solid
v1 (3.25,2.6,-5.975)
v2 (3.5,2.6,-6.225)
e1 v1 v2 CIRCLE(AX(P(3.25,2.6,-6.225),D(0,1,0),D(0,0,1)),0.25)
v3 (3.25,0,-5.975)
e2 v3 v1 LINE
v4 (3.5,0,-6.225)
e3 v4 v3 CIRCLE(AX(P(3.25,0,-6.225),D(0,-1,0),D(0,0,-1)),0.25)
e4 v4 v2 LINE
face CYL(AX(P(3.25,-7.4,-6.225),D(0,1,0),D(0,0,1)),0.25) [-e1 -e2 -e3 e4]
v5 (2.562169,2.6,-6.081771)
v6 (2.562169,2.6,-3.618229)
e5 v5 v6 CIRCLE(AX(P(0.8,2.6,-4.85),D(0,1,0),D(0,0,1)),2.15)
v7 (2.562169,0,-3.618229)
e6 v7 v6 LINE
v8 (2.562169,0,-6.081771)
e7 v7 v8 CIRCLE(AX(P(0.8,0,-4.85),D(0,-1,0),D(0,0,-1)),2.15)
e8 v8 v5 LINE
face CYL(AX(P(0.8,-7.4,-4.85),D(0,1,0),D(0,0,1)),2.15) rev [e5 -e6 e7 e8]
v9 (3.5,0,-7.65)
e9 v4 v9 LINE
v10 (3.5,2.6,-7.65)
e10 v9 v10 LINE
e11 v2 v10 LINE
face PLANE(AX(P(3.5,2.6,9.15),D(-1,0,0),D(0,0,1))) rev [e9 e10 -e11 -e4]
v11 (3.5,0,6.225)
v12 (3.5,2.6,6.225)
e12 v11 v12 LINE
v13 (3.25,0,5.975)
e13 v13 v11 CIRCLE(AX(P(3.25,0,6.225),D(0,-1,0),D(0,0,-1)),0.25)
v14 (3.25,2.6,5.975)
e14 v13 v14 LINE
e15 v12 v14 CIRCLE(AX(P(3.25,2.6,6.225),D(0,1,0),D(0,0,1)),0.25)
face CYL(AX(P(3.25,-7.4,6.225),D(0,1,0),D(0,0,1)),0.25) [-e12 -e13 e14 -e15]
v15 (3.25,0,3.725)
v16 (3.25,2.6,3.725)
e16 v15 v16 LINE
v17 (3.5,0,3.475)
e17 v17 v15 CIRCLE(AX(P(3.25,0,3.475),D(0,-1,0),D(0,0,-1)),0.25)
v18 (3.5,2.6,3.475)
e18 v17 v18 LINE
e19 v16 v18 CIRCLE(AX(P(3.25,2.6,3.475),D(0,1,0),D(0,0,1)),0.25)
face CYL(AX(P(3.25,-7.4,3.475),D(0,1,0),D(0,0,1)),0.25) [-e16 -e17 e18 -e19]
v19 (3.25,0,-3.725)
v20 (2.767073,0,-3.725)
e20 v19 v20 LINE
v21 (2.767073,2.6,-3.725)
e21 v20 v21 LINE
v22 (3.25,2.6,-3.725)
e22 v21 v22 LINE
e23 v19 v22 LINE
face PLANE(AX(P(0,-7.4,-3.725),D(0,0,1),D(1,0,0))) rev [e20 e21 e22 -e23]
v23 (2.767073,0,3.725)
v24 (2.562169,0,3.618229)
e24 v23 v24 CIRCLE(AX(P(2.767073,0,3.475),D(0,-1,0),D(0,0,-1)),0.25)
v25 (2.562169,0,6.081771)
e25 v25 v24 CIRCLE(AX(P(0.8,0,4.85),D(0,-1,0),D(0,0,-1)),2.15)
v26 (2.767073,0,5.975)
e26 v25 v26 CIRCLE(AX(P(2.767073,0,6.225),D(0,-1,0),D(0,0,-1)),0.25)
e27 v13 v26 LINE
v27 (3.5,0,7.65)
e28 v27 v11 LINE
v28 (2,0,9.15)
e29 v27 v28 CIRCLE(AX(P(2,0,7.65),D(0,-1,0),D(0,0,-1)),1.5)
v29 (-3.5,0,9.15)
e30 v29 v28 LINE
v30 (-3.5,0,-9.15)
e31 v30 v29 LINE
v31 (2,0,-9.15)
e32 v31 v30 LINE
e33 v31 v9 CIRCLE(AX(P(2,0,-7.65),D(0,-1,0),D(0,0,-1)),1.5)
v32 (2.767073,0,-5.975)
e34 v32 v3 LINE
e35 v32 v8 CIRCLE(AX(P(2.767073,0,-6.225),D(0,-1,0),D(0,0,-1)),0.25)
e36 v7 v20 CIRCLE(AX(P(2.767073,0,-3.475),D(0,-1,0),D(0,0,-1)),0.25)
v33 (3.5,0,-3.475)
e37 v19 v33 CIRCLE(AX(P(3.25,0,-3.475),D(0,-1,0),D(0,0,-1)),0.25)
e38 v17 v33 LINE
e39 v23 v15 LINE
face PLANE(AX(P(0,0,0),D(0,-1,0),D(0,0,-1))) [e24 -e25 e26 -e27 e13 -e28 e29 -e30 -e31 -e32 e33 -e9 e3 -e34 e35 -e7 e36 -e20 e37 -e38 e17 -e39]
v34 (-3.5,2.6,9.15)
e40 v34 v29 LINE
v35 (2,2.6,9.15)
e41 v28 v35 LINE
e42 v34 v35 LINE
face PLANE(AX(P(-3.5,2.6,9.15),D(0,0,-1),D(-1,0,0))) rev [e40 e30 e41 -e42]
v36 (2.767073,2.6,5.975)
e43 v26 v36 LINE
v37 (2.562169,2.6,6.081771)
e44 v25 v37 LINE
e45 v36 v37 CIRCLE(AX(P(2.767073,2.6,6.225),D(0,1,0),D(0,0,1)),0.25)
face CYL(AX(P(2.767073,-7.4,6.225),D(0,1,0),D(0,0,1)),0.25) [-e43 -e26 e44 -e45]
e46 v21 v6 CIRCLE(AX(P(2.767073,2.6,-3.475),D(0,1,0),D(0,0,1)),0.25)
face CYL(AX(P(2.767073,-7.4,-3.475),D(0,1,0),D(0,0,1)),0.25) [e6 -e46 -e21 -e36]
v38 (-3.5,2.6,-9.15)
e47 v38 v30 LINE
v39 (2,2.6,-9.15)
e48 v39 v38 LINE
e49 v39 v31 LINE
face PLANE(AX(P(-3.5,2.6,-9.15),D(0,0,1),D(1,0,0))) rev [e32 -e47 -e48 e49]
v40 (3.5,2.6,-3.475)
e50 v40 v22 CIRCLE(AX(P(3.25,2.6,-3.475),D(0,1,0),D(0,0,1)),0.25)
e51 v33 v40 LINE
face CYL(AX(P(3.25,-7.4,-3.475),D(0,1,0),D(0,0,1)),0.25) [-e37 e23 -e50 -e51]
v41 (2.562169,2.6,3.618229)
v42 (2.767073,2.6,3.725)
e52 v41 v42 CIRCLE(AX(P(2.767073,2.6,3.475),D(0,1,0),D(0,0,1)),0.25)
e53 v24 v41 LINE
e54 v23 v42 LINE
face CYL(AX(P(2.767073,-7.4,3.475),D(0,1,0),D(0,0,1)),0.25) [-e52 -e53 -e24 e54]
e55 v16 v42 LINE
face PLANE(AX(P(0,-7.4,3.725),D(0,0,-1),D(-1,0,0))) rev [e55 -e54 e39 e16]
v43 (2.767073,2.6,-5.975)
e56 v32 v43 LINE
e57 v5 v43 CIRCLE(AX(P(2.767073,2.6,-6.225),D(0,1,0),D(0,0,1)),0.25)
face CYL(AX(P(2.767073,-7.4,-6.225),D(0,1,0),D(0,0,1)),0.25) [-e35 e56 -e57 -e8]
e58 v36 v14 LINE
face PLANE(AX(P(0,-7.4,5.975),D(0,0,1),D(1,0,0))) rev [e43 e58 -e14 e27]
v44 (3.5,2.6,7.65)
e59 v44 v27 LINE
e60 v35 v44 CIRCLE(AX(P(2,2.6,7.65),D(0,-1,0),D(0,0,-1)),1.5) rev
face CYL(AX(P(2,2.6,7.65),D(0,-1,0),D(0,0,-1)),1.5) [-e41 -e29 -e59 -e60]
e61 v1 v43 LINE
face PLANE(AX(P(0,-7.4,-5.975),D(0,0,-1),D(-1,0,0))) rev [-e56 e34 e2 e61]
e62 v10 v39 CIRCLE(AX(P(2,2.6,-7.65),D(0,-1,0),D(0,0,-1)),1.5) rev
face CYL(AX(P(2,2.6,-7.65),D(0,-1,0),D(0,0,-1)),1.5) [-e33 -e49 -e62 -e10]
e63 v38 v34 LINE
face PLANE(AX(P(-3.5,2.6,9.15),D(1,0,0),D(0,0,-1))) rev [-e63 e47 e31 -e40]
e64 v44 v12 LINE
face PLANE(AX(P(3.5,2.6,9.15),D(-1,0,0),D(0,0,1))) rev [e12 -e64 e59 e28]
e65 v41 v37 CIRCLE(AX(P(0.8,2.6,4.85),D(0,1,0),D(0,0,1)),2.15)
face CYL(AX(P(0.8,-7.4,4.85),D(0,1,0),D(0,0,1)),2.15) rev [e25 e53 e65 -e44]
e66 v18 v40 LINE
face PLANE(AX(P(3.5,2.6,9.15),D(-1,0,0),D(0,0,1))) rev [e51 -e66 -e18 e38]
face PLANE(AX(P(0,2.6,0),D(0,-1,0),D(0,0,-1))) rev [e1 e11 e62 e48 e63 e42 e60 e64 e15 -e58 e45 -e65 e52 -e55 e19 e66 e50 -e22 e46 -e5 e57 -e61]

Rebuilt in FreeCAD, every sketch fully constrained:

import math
import FreeCAD as App
import Part
import Sketcher
from FreeCAD import Vector


def edges_at(feature, points):
    """Names of the edges that pass closest to the given points."""
    edges = feature.Shape.Edges
    near = lambda p: min(range(len(edges)), key=lambda i: edges[i].distToShape(Part.Vertex(*p))[0])
    return sorted({f"Edge{near(p) + 1}" for p in points})


def add_polygon(sketch, points):
    """Adds a closed chain of lines whose ends are joined by coincident constraints."""
    first, n = sketch.GeometryCount, len(points)
    for a, b in zip(points, points[1:] + points[:1]):
        sketch.addGeometry(Part.LineSegment(App.Vector(*a, 0), App.Vector(*b, 0)), False)
    for i in range(n):
        sketch.addConstraint(Sketcher.Constraint("Coincident", first + i, 2, first + (i + 1) % n, 1))

doc = App.newDocument("Part")
body = doc.addObject("PartDesign::Body", "Body")

# Sketch on XZ plane
sketch1 = body.newObject("Sketcher::SketchObject", "Sketch")
sketch1.AttachmentSupport = (doc.getObject("XZ_Plane"), [""])
sketch1.MapMode = "FlatFace"
add_polygon(sketch1, [(-4, -9), (-4, 9), (4, 9), (4, -9)])  # lines 0-3
sketch1.addConstraint([
    Sketcher.Constraint("Vertical", 0),
    Sketcher.Constraint("Horizontal", 1),
    Sketcher.Constraint("Vertical", 2),
    Sketcher.Constraint("Horizontal", 3),
    Sketcher.Constraint("Symmetric", 0, 2, 2, 2, -1, 1),
    Sketcher.Constraint("DistanceX", 1, 1, 1, 2, 7.0),
    Sketcher.Constraint("DistanceY", 0, 1, 0, 2, 18.3),
])
pad1 = body.newObject("PartDesign::Pad", "Pad")
pad1.Profile = sketch1
pad1.Length = 2.6
pad1.Reversed = True

# Sketch on XZ plane
sketch2 = body.newObject("Sketcher::SketchObject", "Sketch001")
sketch2.AttachmentSupport = (doc.getObject("XZ_Plane"), [""])
sketch2.MapMode = "FlatFace"
sketch2.AttachmentOffset = App.Placement(Vector(0, 0, -2.6), App.Rotation())
sketch2.addGeometry([
    Part.ArcOfCircle(Part.Circle(Vector(3.25, -3.47, 0), Vector(0, 0, 1), 0.25), math.radians(-90), math.radians(0)),  # 0
    Part.LineSegment(Vector(3.5, -3.48, 0), Vector(3.5, -6.22, 0)),  # 1
    Part.ArcOfCircle(Part.Circle(Vector(3.25, -6.23, 0), Vector(0, 0, 1), 0.25), math.radians(0), math.radians(90)),  # 2
    Part.LineSegment(Vector(3.25, -5.97, 0), Vector(2.77, -5.97, 0)),  # 3
    Part.ArcOfCircle(Part.Circle(Vector(2.77, -6.23, 0), Vector(0, 0, 1), 0.25), math.radians(90), math.radians(145)),  # 4
    Part.ArcOfCircle(Part.Circle(Vector(0.8, -4.85, 0), Vector(0, 0, 1), 2.15), math.radians(35), math.radians(325)),  # 5
    Part.ArcOfCircle(Part.Circle(Vector(2.77, -3.47, 0), Vector(0, 0, 1), 0.25), math.radians(-145), math.radians(-90)),  # 6
    Part.LineSegment(Vector(2.77, -3.73, 0), Vector(3.25, -3.73, 0)),  # 7
    Part.ArcOfCircle(Part.Circle(Vector(3.25, 3.47, 0), Vector(0, 0, 1), 0.25), math.radians(0), math.radians(90)),  # 8
    Part.LineSegment(Vector(3.25, 3.73, 0), Vector(2.77, 3.73, 0)),  # 9
    Part.ArcOfCircle(Part.Circle(Vector(2.77, 3.47, 0), Vector(0, 0, 1), 0.25), math.radians(90), math.radians(145)),  # 10
    Part.ArcOfCircle(Part.Circle(Vector(0.8, 4.85, 0), Vector(0, 0, 1), 2.15), math.radians(35), math.radians(325)),  # 11
    Part.ArcOfCircle(Part.Circle(Vector(2.77, 6.23, 0), Vector(0, 0, 1), 0.25), math.radians(-145), math.radians(-90)),  # 12
    Part.LineSegment(Vector(2.77, 5.97, 0), Vector(3.25, 5.97, 0)),  # 13
    Part.ArcOfCircle(Part.Circle(Vector(3.25, 6.23, 0), Vector(0, 0, 1), 0.25), math.radians(-90), math.radians(0)),  # 14
    Part.LineSegment(Vector(3.5, 6.22, 0), Vector(3.5, 3.48, 0)),  # 15
], False)
sketch2.addConstraint([
    Sketcher.Constraint("Tangent", 0, 2, 1, 1),
    Sketcher.Constraint("Tangent", 1, 2, 2, 1),
    Sketcher.Constraint("Tangent", 2, 2, 3, 1),
    Sketcher.Constraint("Tangent", 3, 2, 4, 1),
    Sketcher.Constraint("Tangent", 4, 2, 5, 2),
    Sketcher.Constraint("Tangent", 5, 1, 6, 1),
    Sketcher.Constraint("Tangent", 6, 2, 7, 1),
    Sketcher.Constraint("Tangent", 7, 2, 0, 1),
    Sketcher.Constraint("Tangent", 8, 2, 9, 1),
    Sketcher.Constraint("Tangent", 9, 2, 10, 1),
    Sketcher.Constraint("Tangent", 10, 2, 11, 2),
    Sketcher.Constraint("Tangent", 11, 1, 12, 1),
    Sketcher.Constraint("Tangent", 12, 2, 13, 1),
    Sketcher.Constraint("Tangent", 13, 2, 14, 1),
    Sketcher.Constraint("Tangent", 14, 2, 15, 1),
    Sketcher.Constraint("Tangent", 15, 2, 8, 1),
    Sketcher.Constraint("Vertical", 1),
    Sketcher.Constraint("Horizontal", 3),
    Sketcher.Constraint("Horizontal", 7),
    Sketcher.Constraint("Horizontal", 9),
    Sketcher.Constraint("Horizontal", 13),
    Sketcher.Constraint("Vertical", 15),
    Sketcher.Constraint("Equal", 0, 2),
    Sketcher.Constraint("Equal", 2, 4),
    Sketcher.Constraint("Equal", 4, 6),
    Sketcher.Constraint("Equal", 6, 8),
    Sketcher.Constraint("Equal", 8, 10),
    Sketcher.Constraint("Equal", 5, 11),
    Sketcher.Constraint("Equal", 10, 12),
    Sketcher.Constraint("Equal", 12, 14),
    Sketcher.Constraint("Symmetric", 0, 3, 8, 3, -1),
    Sketcher.Constraint("Symmetric", 5, 3, 11, 3, -1),
    Sketcher.Constraint("Vertical", 4, 3, 6, 3),
    Sketcher.Constraint("Vertical", 10, 3, 12, 3),
    Sketcher.Constraint("Radius", 0, 0.25),
    Sketcher.Constraint("Radius", 5, 2.15),
    Sketcher.Constraint("DistanceY", 1, 2, 1, 1, 2.75),
    Sketcher.Constraint("DistanceX", -1, 1, 5, 3, 0.8),
    Sketcher.Constraint("DistanceX", -1, 1, 0, 2, 3.5),
    Sketcher.Constraint("DistanceY", 2, 3, 8, 3, 9.7),
])
pocket1 = body.newObject("PartDesign::Pocket", "Pocket")
pocket1.Profile = sketch2
pocket1.Length = 10
pocket1.Reversed = True
doc.recompute()

fillet = body.newObject("PartDesign::Fillet", "Fillet")
fillet.Base = (pocket1, edges_at(pocket1, [(3.5, 1.3, 9.15), (3.5, 1.3, -9.15)]))
fillet.Radius = 1.5

doc.recompute()
